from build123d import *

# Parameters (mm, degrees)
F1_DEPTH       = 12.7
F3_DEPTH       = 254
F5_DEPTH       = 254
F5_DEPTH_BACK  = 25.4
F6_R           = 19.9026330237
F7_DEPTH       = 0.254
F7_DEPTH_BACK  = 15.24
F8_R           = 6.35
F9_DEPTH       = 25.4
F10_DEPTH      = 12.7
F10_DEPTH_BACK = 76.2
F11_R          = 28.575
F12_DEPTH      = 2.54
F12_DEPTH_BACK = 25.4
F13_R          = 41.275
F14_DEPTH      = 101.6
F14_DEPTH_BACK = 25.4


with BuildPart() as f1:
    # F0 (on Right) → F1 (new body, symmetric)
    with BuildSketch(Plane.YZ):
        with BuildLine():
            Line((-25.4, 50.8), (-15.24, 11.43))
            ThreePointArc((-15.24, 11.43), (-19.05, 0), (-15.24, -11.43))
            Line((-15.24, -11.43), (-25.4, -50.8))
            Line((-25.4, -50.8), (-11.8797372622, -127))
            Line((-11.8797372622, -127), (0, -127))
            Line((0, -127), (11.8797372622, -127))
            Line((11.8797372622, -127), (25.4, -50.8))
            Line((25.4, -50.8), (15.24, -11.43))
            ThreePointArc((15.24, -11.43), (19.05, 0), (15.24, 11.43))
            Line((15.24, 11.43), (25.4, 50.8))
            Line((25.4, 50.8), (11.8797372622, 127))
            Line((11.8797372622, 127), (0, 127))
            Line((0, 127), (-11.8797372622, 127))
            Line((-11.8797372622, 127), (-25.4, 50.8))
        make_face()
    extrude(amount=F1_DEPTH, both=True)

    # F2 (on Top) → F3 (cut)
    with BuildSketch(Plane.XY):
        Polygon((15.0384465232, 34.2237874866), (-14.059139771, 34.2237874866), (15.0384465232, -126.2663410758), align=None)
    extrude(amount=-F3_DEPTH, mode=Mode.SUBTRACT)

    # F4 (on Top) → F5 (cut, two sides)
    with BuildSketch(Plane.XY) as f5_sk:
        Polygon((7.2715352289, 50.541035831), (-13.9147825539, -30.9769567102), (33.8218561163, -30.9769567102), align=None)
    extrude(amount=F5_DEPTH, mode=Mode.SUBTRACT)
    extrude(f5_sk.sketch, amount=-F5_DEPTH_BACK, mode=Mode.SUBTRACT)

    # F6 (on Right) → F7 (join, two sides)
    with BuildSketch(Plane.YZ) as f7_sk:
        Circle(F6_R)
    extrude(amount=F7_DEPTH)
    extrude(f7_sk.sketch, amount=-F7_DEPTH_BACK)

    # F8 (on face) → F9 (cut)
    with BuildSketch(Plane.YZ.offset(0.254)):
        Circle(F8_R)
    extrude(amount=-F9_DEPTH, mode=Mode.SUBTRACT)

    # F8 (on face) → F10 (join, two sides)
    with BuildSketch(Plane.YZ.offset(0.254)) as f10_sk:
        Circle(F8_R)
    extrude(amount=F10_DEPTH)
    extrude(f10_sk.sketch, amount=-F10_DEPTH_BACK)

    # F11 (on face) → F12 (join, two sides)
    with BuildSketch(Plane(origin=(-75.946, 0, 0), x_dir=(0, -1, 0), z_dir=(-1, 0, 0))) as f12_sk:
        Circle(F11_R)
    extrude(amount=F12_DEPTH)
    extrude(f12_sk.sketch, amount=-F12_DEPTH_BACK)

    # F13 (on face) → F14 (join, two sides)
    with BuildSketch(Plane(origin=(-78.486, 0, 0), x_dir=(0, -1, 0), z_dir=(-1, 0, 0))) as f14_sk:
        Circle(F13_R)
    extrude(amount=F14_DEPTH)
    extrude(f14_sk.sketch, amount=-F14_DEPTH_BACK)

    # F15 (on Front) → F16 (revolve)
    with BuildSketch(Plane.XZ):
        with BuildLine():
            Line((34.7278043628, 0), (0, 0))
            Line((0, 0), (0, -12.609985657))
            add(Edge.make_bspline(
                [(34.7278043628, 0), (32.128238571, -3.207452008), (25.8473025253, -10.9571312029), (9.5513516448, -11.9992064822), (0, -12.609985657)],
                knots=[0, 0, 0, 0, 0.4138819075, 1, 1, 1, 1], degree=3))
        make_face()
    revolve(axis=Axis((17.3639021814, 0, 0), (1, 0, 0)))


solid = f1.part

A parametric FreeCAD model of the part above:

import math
import FreeCAD as App
import Part
import Sketcher
from FreeCAD import Vector
Q = App.Units.Quantity


def add_polygon(sketch, points):
    """Adds a closed chain of lines whose ends are joined by coincident constraints."""
    first, n = sketch.GeometryCount, len(points)
    for a, b in zip(points, points[1:] + points[:1]):
        sketch.addGeometry(Part.LineSegment(App.Vector(*a, 0), App.Vector(*b, 0)), False)
    for i in range(n):
        sketch.addConstraint(Sketcher.Constraint("Coincident", first + i, 2, first + (i + 1) % n, 1))

doc = App.newDocument("Part")
params = doc.addObject("Spreadsheet::Sheet", "Params")
for row, (alias, value) in enumerate([
    ("sketch1_radius", "0.75 in"),
    ("pad1_length", "1 in"),
    ("pocket1_length", "10 in"),
    ("pocket2_length", "10 in"),
    ("pocket2_length2", "1 in"),
    ("pad2_length", "0.01 in"),
    ("pad2_length2", "0.6 in"),
    ("sketch5_diameter", "0.5 in"),
    ("pocket3_length", "1 in"),
    ("sketch6_diameter", "0.5 in"),
    ("pad3_length", "0.5 in"),
    ("pad3_length2", "3 in"),
    ("sketch7_diameter", "2.25 in"),
    ("pad4_length", "0.1 in"),
    ("pad4_length2", "1 in"),
    ("sketch8_diameter", "3.25 in"),
    ("pad5_length", "4 in"),
    ("pad5_length2", "1 in"),
    ("revolution_angle", "360 deg"),
], start=1):
    params.set(f"A{row}", alias)
    params.set(f"B{row}", "=" + value)
    params.setAlias(f"B{row}", alias)

body = doc.addObject("PartDesign::Body", "Body")

# Sketch on YZ plane
sketch1 = body.newObject("Sketcher::SketchObject", "Sketch")
sketch1.AttachmentSupport = (doc.getObject("YZ_Plane"), [""])
sketch1.MapMode = "FlatFace"
sketch1.addGeometry([
    Part.LineSegment(Vector(-25, 51, 0), Vector(-15, 11, 0)),  # 0
    Part.ArcOfCircle(Part.Circle(Vector(0, 0, 0), Vector(0, 0, 1), 19), math.radians(143), math.radians(217)),  # 1
    Part.LineSegment(Vector(-15, -11, 0), Vector(-25, -51, 0)),  # 2
    Part.LineSegment(Vector(-25, -51, 0), Vector(-12, -127, 0)),  # 3
    Part.LineSegment(Vector(-12, -127, 0), Vector(12, -127, 0)),  # 4
    Part.LineSegment(Vector(12, -127, 0), Vector(25, -51, 0)),  # 5
    Part.LineSegment(Vector(25, -51, 0), Vector(15, -11, 0)),  # 6
    Part.ArcOfCircle(Part.Circle(Vector(0, 0, 0), Vector(0, 0, 1), 19), math.radians(-37), math.radians(37)),  # 7
    Part.LineSegment(Vector(15, 11, 0), Vector(25, 51, 0)),  # 8
    Part.LineSegment(Vector(25, 51, 0), Vector(12, 127, 0)),  # 9
    Part.LineSegment(Vector(12, 127, 0), Vector(-12, 127, 0)),  # 10
    Part.LineSegment(Vector(-12, 127, 0), Vector(-25, 51, 0)),  # 11
], False)
sketch1.addConstraint([
    Sketcher.Constraint("Coincident", 0, 2, 1, 1),
    Sketcher.Constraint("Coincident", 1, 2, 2, 1),
    Sketcher.Constraint("Coincident", 2, 2, 3, 1),
    Sketcher.Constraint("Coincident", 3, 2, 4, 1),
    Sketcher.Constraint("Coincident", 4, 2, 5, 1),
    Sketcher.Constraint("Coincident", 5, 2, 6, 1),
    Sketcher.Constraint("Coincident", 6, 2, 7, 1),
    Sketcher.Constraint("Coincident", 7, 2, 8, 1),
    Sketcher.Constraint("Coincident", 8, 2, 9, 1),
    Sketcher.Constraint("Coincident", 9, 2, 10, 1),
    Sketcher.Constraint("Coincident", 10, 2, 11, 1),
    Sketcher.Constraint("Coincident", 11, 2, 0, 1),
    Sketcher.Constraint("Horizontal", 4),
    Sketcher.Constraint("Horizontal", 10),
    Sketcher.Constraint("Coincident", 1, 3, -1, 1),
    Sketcher.Constraint("Coincident", 7, 3, -1, 1),
    Sketcher.Constraint("Equal", 1, 7),
    Sketcher.Constraint("Symmetric", 2, 2, 8, 2, -1, 1),
    Sketcher.Constraint("Symmetric", 3, 2, 9, 2, -1, 1),
    Sketcher.Constraint("Symmetric", 5, 2, 11, 2, -1, 1),
    Sketcher.Constraint("Symmetric", 2, 2, 5, 2, -2),
    Sketcher.Constraint("Parallel", 0, 6),
    Sketcher.Constraint("Parallel", 2, 8),
    Sketcher.Constraint("Parallel", 5, 11),
    Sketcher.Constraint("Horizontal", 1, 2, 6, 2),
    Sketcher.Constraint("Vertical", 4, 2, 9, 2),
    Sketcher.Constraint("Radius", 1, Q("0.75 in")),
    Sketcher.Constraint("DistanceX", 2, 2, -1, 1, Q("1 in")),
    Sketcher.Constraint("DistanceY", 2, 2, -1, 1, Q("2 in")),
    Sketcher.Constraint("DistanceY", 3, 2, -1, 1, Q("5 in")),
    Sketcher.Constraint("DistanceX", 0, 2, -1, 1, Q("0.6 in")),
    Sketcher.Constraint("DistanceX", 4, 1, 4, 2, 23.759475),
])
sketch1.setExpression("Constraints[26]", "Params.sketch1_radius")
pad1 = body.newObject("PartDesign::Pad", "Pad")
pad1.Profile = sketch1
pad1.setExpression("Length", "Params.pad1_length")
pad1.Midplane = True

# Sketch on XY plane
sketch2 = body.newObject("Sketcher::SketchObject", "Sketch001")
sketch2.AttachmentSupport = (doc.getObject("XY_Plane"), [""])
sketch2.MapMode = "FlatFace"
add_polygon(sketch2, [(15, 34), (-14, 34), (15, -126)])  # lines 0-2
sketch2.addConstraint([
    Sketcher.Constraint("Horizontal", 0),
    Sketcher.Constraint("Vertical", 2),
    Sketcher.Constraint("DistanceY", 2, 1, 2, 2, 160.490129),
    Sketcher.Constraint("DistanceX", 0, 2, 0, 1, 29.097586),
    Sketcher.Constraint("DistanceX", 0, 2, -1, 1, 14.05914),
    Sketcher.Constraint("DistanceY", 1, 2, -1, 1, 126.266341),
])
pocket1 = body.newObject("PartDesign::Pocket", "Pocket")
pocket1.Profile = sketch2
pocket1.setExpression("Length", "Params.pocket1_length")

# Sketch on XY plane
sketch3 = body.newObject("Sketcher::SketchObject", "Sketch002")
sketch3.AttachmentSupport = (doc.getObject("XY_Plane"), [""])
sketch3.MapMode = "FlatFace"
add_polygon(sketch3, [(7, 51), (-14, -31), (34, -31)])  # lines 0-2
sketch3.addConstraint([
    Sketcher.Constraint("Horizontal", 1),
    Sketcher.Constraint("DistanceX", 1, 1, 1, 2, 47.736639),
    Sketcher.Constraint("Distance", 2, 85.73274),
    Sketcher.Constraint("DistanceX", 2, 2, 1, 2, 26.550321),
    Sketcher.Constraint("DistanceX", 0, 2, -1, 1, 13.914783),
    Sketcher.Constraint("DistanceY", 0, 2, -1, 1, 30.976957),
])
pocket2 = body.newObject("PartDesign::Pocket", "Pocket001")
pocket2.Profile = sketch3
pocket2.Type = "TwoLengths"
pocket2.setExpression("Length", "Params.pocket2_length")
pocket2.setExpression("Length2", "Params.pocket2_length2")
pocket2.Reversed = True

# Sketch on YZ plane
sketch4 = body.newObject("Sketcher::SketchObject", "Sketch003")
sketch4.AttachmentSupport = (doc.getObject("YZ_Plane"), [""])
sketch4.MapMode = "FlatFace"
sketch4.addGeometry(Part.Circle(Vector(0, 0, 0), Vector(0, 0, 1), 20), False)
sketch4.addConstraint([
    Sketcher.Constraint("Coincident", 0, 3, -1, 1),
    Sketcher.Constraint("Diameter", 0, 39.805266),
])
pad2 = body.newObject("PartDesign::Pad", "Pad001")
pad2.Profile = sketch4
pad2.Type = "TwoLengths"
pad2.setExpression("Length", "Params.pad2_length")
pad2.setExpression("Length2", "Params.pad2_length2")

# Sketch on YZ plane
sketch5 = body.newObject("Sketcher::SketchObject", "Sketch004")
sketch5.AttachmentSupport = (doc.getObject("YZ_Plane"), [""])
sketch5.MapMode = "FlatFace"
sketch5.AttachmentOffset = App.Placement(Vector(0, 0, 0.01 * 25.4), App.Rotation())
sketch5.addGeometry(Part.Circle(Vector(0, 0, 0), Vector(0, 0, 1), 6), False)
sketch5.addConstraint([
    Sketcher.Constraint("Coincident", 0, 3, -1, 1),
    Sketcher.Constraint("Diameter", 0, Q("0.5 in")),
])
sketch5.setExpression("Constraints[1]", "Params.sketch5_diameter")
pocket3 = body.newObject("PartDesign::Pocket", "Pocket002")
pocket3.Profile = sketch5
pocket3.setExpression("Length", "Params.pocket3_length")

# Sketch on YZ plane
sketch6 = body.newObject("Sketcher::SketchObject", "Sketch005")
sketch6.AttachmentSupport = (doc.getObject("YZ_Plane"), [""])
sketch6.MapMode = "FlatFace"
sketch6.AttachmentOffset = App.Placement(Vector(0, 0, 0.01 * 25.4), App.Rotation())
sketch6.addGeometry(Part.Circle(Vector(0, 0, 0), Vector(0, 0, 1), 6), False)
sketch6.addConstraint([
    Sketcher.Constraint("Coincident", 0, 3, -1, 1),
    Sketcher.Constraint("Diameter", 0, Q("0.5 in")),
])
sketch6.setExpression("Constraints[1]", "Params.sketch6_diameter")
pad3 = body.newObject("PartDesign::Pad", "Pad002")
pad3.Profile = sketch6
pad3.Type = "TwoLengths"
pad3.setExpression("Length", "Params.pad3_length")
pad3.setExpression("Length2", "Params.pad3_length2")

# Sketch on YZ plane
sketch7 = body.newObject("Sketcher::SketchObject", "Sketch006")
sketch7.AttachmentSupport = (doc.getObject("YZ_Plane"), [""])
sketch7.MapMode = "FlatFace"
sketch7.AttachmentOffset = App.Placement(Vector(0, 0, -2.99 * 25.4), App.Rotation())
sketch7.addGeometry(Part.Circle(Vector(0, 0, 0), Vector(0, 0, 1), 29), False)
sketch7.addConstraint([
    Sketcher.Constraint("Coincident", 0, 3, -1, 1),
    Sketcher.Constraint("Diameter", 0, Q("2.25 in")),
])
sketch7.setExpression("Constraints[1]", "Params.sketch7_diameter")
pad4 = body.newObject("PartDesign::Pad", "Pad003")
pad4.Profile = sketch7
pad4.Type = "TwoLengths"
pad4.setExpression("Length", "Params.pad4_length")
pad4.setExpression("Length2", "Params.pad4_length2")
pad4.Reversed = True

# Sketch on YZ plane
sketch8 = body.newObject("Sketcher::SketchObject", "Sketch007")
sketch8.AttachmentSupport = (doc.getObject("YZ_Plane"), [""])
sketch8.MapMode = "FlatFace"
sketch8.AttachmentOffset = App.Placement(Vector(0, 0, -3.09 * 25.4), App.Rotation())
sketch8.addGeometry(Part.Circle(Vector(0, 0, 0), Vector(0, 0, 1), 41), False)
sketch8.addConstraint([
    Sketcher.Constraint("Coincident", 0, 3, -1, 1),
    Sketcher.Constraint("Diameter", 0, Q("3.25 in")),
])
sketch8.setExpression("Constraints[1]", "Params.sketch8_diameter")
pad5 = body.newObject("PartDesign::Pad", "Pad004")
pad5.Profile = sketch8
pad5.Type = "TwoLengths"
pad5.setExpression("Length", "Params.pad5_length")
pad5.setExpression("Length2", "Params.pad5_length2")
pad5.Reversed = True

# Sketch on XZ plane
sketch9 = body.newObject("Sketcher::SketchObject", "Sketch008")
sketch9.AttachmentSupport = (doc.getObject("XZ_Plane"), [""])
sketch9.MapMode = "FlatFace"
sketch9.addGeometry([
    Part.LineSegment(Vector(34.727804, 0, 0), Vector(0, 0, 0)),
    Part.LineSegment(Vector(0, 0, 0), Vector(0, -12.609986, 0)),
    Part.BSplineCurve([Vector(34.727804, 0, 0), Vector(32.128239, -3.207452, 0), Vector(25.847303, -10.957131, 0), Vector(9.551352, -11.999206, 0), Vector(0, -12.609986, 0)], [4, 1, 4], [0, 0.413881907, 1], False, 3, [1, 1, 1, 1, 1], False),
], False)
sketch9.addConstraint([
    Sketcher.Constraint("Block", 2),
    Sketcher.Constraint("Coincident", 0, 2, 1, 1),
    Sketcher.Constraint("Coincident", 1, 2, 2, 2),
    Sketcher.Constraint("Coincident", 2, 1, 0, 1),
    Sketcher.Constraint("Horizontal", 0),
    Sketcher.Constraint("Vertical", 1),
])
revolution = body.newObject("PartDesign::Revolution", "Revolution")
revolution.Profile = sketch9
revolution.ReferenceAxis = (sketch9, ["H_Axis"])
revolution.setExpression("Angle", "Params.revolution_angle")

doc.recompute()
